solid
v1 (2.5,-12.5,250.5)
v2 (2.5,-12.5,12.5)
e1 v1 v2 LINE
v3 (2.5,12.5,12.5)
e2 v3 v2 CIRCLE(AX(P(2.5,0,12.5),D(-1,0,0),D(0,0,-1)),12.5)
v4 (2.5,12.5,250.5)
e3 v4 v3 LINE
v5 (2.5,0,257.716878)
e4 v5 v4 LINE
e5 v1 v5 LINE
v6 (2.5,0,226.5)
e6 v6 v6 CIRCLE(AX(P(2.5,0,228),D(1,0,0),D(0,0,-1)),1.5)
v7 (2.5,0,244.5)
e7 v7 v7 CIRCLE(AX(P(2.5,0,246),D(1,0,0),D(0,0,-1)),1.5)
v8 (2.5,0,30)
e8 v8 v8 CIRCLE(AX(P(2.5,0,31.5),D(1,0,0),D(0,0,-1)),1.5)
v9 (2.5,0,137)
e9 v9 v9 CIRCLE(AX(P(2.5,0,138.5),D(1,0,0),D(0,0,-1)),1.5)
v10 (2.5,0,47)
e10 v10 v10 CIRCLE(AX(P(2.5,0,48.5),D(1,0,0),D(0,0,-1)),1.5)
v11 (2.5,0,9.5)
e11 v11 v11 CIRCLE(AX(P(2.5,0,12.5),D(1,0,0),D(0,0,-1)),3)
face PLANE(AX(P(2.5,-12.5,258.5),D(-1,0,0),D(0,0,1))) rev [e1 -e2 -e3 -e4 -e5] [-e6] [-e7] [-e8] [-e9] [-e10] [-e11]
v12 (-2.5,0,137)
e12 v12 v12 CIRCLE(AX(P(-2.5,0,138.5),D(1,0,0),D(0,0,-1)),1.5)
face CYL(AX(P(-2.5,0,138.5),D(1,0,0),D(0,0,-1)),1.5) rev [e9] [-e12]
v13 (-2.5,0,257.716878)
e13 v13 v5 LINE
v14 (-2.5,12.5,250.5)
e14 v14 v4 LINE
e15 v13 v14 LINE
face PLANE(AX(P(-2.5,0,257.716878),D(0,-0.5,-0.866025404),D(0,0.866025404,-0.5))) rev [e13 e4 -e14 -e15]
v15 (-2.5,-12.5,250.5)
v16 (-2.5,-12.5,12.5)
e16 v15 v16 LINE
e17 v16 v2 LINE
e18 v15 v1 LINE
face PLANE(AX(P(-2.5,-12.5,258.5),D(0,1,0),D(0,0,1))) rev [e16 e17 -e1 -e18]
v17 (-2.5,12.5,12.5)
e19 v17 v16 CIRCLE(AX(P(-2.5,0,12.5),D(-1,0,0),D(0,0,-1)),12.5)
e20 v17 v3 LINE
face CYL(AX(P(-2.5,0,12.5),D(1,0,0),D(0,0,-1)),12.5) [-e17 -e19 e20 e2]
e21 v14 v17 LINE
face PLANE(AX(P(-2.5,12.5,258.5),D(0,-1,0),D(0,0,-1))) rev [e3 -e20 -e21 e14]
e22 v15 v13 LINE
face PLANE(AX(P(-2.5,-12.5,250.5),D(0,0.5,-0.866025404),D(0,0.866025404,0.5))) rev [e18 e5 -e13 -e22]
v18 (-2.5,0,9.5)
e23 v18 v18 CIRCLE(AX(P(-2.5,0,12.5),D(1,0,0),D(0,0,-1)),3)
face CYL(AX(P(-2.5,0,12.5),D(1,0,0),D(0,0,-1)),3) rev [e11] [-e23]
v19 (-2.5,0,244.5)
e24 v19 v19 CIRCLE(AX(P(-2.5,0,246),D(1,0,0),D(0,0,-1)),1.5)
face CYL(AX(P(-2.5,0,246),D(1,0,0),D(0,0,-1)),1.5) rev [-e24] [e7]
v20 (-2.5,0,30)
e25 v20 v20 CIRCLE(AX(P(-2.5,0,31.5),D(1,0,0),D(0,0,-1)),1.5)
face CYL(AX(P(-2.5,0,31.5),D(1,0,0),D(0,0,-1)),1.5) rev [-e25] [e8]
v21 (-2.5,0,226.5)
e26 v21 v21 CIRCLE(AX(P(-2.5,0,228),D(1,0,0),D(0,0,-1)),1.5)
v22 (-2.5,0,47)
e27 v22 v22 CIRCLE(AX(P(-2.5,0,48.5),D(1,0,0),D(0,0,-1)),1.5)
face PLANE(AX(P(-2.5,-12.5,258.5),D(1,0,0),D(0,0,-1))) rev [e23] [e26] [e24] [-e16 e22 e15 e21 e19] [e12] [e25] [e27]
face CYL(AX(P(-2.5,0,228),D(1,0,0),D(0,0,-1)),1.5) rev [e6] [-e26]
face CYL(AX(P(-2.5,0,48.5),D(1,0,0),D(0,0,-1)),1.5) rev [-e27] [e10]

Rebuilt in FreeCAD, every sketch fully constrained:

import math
import FreeCAD as App
import Part
import Sketcher

V = App.Vector
Q = App.Units.Quantity


def add_polygon(sketch, points):
    """Adds a closed chain of lines whose ends are joined by coincident constraints."""
    first, n = sketch.GeometryCount, len(points)
    for a, b in zip(points, points[1:] + points[:1]):
        sketch.addGeometry(Part.LineSegment(App.Vector(*a, 0), App.Vector(*b, 0)), False)
    for i in range(n):
        sketch.addConstraint(Sketcher.Constraint("Coincident", first + i, 2, first + (i + 1) % n, 1))

doc = App.newDocument("Part")
body = doc.addObject("PartDesign::Body", "Body")

# Sketch on XY plane
sketch1 = body.newObject("Sketcher::SketchObject", "Sketch")
sketch1.AttachmentSupport = (doc.getObject("XY_Plane"), [""])
sketch1.MapMode = "FlatFace"
add_polygon(sketch1, [(-2, 12), (-2, -12), (2, -12), (2, 12)])  # lines 0-3
sketch1.addConstraint([
    Sketcher.Constraint("Vertical", 0),
    Sketcher.Constraint("Horizontal", 1),
    Sketcher.Constraint("Vertical", 2),
    Sketcher.Constraint("Horizontal", 3),
    Sketcher.Constraint("Symmetric", 0, 2, 2, 2, -1, 1),
    Sketcher.Constraint("DistanceX", 1, 1, 1, 2, Q("5 mm")),
    Sketcher.Constraint("DistanceY", 0, 2, 0, 1, Q("25 mm")),
])
pad1 = body.newObject("PartDesign::Pad", "Pad")
pad1.Profile = sketch1
pad1.Length = 258.5

# Sketch on YZ plane
sketch2 = body.newObject("Sketcher::SketchObject", "Sketch001")
sketch2.AttachmentSupport = (doc.getObject("YZ_Plane"), [""])
sketch2.MapMode = "FlatFace"
sketch2.AttachmentOffset = App.Placement(V(0, 0, 2.5), App.Rotation())
sketch2.addGeometry(Part.Circle(V(0, 12.5, 0), V(0, 0, 1), 3), False)  # 0
sketch2.addGeometry(Part.Circle(V(0, 246, 0), V(0, 0, 1), 1.5), False)  # 1
sketch2.addGeometry(Part.Circle(V(0, 228, 0), V(0, 0, 1), 1.5), False)  # 2
sketch2.addGeometry(Part.Circle(V(0, 48.5, 0), V(0, 0, 1), 1.5), False)  # 3
sketch2.addGeometry(Part.Circle(V(0, 31.5, 0), V(0, 0, 1), 1.5), False)  # 4
sketch2.addGeometry(Part.Circle(V(0, 138.5, 0), V(0, 0, 1), 1.5), False)  # 5
sketch2.addGeometry(Part.LineSegment(V(12.5, -5.5, 0), V(12.5, 12.5, 0)), False)  # 6
sketch2.addGeometry(Part.ArcOfCircle(Part.Circle(V(0, 12.5, 0), V(0, 0, 1), 12.5), math.radians(180), math.radians(360)), False)  # 7
sketch2.addGeometry(Part.LineSegment(V(-12.5, 12.5, 0), V(-12.5, -5.5, 0)), False)  # 8
sketch2.addGeometry(Part.LineSegment(V(-12.5, -5.5, 0), V(12.5, -5.5, 0)), False)  # 9
add_polygon(sketch2, [(0, 257.7), (12.5, 250.5), (12.5, 258.5), (-12.5, 258.5), (-12.5, 250.5)])  # lines 10-14
sketch2.addConstraint([
    Sketcher.Constraint("Tangent", 6, 2, 7, 2),
    Sketcher.Constraint("Tangent", 7, 1, 8, 1),
    Sketcher.Constraint("Coincident", 8, 2, 9, 1),
    Sketcher.Constraint("Coincident", 9, 2, 6, 1),
    Sketcher.Constraint("Vertical", 6),
    Sketcher.Constraint("Vertical", 8),
    Sketcher.Constraint("Horizontal", 9),
    Sketcher.Constraint("Vertical", 11),
    Sketcher.Constraint("Horizontal", 12),
    Sketcher.Constraint("Vertical", 13),
    Sketcher.Constraint("Coincident", 7, 3, 0, 3),
    Sketcher.Constraint("Equal", 1, 2),
    Sketcher.Constraint("Equal", 2, 3),
    Sketcher.Constraint("Equal", 3, 4),
    Sketcher.Constraint("Equal", 4, 5),
    Sketcher.Constraint("Symmetric", 10, 2, 13, 2, -2),
    Sketcher.Constraint("PointOnObject", 0, 3, -2),
    Sketcher.Constraint("PointOnObject", 1, 3, -2),
    Sketcher.Constraint("PointOnObject", 2, 3, -2),
    Sketcher.Constraint("PointOnObject", 3, 3, -2),
    Sketcher.Constraint("PointOnObject", 4, 3, -2),
    Sketcher.Constraint("PointOnObject", 5, 3, -2),
    Sketcher.Constraint("PointOnObject", 14, 2, -2),
    Sketcher.Constraint("Vertical", 9, 2, 10, 2),
    Sketcher.Constraint("Diameter", 0, Q("6 mm")),
    Sketcher.Constraint("Diameter", 1, Q("3 mm")),
    Sketcher.Constraint("Radius", 7, Q("12.5 mm")),
    Sketcher.Constraint("DistanceY", 6, 1, 6, 2, Q("18 mm")),
    Sketcher.Constraint("DistanceY", 11, 1, 11, 2, Q("8 mm")),
    Sketcher.Constraint("Angle", 10, Q("-30 deg")),
    Sketcher.Constraint("DistanceY", -1, 1, 1, 3, Q("246 mm")),
    Sketcher.Constraint("DistanceY", -1, 1, 2, 3, Q("228 mm")),
    Sketcher.Constraint("DistanceY", 0, 3, 3, 3, Q("36 mm")),
    Sketcher.Constraint("DistanceY", 4, 3, 3, 3, Q("17 mm")),
    Sketcher.Constraint("DistanceY", 3, 3, 5, 3, Q("90 mm")),
    Sketcher.Constraint("DistanceY", 5, 3, 10, 2, Q("112 mm")),
    Sketcher.Constraint("DistanceY", -1, 1, 0, 3, Q("12.5 mm")),
])
pocket1 = body.newObject("PartDesign::Pocket", "Pocket")
pocket1.Profile = sketch2
pocket1.Type = "ThroughAll"

doc.recompute()
